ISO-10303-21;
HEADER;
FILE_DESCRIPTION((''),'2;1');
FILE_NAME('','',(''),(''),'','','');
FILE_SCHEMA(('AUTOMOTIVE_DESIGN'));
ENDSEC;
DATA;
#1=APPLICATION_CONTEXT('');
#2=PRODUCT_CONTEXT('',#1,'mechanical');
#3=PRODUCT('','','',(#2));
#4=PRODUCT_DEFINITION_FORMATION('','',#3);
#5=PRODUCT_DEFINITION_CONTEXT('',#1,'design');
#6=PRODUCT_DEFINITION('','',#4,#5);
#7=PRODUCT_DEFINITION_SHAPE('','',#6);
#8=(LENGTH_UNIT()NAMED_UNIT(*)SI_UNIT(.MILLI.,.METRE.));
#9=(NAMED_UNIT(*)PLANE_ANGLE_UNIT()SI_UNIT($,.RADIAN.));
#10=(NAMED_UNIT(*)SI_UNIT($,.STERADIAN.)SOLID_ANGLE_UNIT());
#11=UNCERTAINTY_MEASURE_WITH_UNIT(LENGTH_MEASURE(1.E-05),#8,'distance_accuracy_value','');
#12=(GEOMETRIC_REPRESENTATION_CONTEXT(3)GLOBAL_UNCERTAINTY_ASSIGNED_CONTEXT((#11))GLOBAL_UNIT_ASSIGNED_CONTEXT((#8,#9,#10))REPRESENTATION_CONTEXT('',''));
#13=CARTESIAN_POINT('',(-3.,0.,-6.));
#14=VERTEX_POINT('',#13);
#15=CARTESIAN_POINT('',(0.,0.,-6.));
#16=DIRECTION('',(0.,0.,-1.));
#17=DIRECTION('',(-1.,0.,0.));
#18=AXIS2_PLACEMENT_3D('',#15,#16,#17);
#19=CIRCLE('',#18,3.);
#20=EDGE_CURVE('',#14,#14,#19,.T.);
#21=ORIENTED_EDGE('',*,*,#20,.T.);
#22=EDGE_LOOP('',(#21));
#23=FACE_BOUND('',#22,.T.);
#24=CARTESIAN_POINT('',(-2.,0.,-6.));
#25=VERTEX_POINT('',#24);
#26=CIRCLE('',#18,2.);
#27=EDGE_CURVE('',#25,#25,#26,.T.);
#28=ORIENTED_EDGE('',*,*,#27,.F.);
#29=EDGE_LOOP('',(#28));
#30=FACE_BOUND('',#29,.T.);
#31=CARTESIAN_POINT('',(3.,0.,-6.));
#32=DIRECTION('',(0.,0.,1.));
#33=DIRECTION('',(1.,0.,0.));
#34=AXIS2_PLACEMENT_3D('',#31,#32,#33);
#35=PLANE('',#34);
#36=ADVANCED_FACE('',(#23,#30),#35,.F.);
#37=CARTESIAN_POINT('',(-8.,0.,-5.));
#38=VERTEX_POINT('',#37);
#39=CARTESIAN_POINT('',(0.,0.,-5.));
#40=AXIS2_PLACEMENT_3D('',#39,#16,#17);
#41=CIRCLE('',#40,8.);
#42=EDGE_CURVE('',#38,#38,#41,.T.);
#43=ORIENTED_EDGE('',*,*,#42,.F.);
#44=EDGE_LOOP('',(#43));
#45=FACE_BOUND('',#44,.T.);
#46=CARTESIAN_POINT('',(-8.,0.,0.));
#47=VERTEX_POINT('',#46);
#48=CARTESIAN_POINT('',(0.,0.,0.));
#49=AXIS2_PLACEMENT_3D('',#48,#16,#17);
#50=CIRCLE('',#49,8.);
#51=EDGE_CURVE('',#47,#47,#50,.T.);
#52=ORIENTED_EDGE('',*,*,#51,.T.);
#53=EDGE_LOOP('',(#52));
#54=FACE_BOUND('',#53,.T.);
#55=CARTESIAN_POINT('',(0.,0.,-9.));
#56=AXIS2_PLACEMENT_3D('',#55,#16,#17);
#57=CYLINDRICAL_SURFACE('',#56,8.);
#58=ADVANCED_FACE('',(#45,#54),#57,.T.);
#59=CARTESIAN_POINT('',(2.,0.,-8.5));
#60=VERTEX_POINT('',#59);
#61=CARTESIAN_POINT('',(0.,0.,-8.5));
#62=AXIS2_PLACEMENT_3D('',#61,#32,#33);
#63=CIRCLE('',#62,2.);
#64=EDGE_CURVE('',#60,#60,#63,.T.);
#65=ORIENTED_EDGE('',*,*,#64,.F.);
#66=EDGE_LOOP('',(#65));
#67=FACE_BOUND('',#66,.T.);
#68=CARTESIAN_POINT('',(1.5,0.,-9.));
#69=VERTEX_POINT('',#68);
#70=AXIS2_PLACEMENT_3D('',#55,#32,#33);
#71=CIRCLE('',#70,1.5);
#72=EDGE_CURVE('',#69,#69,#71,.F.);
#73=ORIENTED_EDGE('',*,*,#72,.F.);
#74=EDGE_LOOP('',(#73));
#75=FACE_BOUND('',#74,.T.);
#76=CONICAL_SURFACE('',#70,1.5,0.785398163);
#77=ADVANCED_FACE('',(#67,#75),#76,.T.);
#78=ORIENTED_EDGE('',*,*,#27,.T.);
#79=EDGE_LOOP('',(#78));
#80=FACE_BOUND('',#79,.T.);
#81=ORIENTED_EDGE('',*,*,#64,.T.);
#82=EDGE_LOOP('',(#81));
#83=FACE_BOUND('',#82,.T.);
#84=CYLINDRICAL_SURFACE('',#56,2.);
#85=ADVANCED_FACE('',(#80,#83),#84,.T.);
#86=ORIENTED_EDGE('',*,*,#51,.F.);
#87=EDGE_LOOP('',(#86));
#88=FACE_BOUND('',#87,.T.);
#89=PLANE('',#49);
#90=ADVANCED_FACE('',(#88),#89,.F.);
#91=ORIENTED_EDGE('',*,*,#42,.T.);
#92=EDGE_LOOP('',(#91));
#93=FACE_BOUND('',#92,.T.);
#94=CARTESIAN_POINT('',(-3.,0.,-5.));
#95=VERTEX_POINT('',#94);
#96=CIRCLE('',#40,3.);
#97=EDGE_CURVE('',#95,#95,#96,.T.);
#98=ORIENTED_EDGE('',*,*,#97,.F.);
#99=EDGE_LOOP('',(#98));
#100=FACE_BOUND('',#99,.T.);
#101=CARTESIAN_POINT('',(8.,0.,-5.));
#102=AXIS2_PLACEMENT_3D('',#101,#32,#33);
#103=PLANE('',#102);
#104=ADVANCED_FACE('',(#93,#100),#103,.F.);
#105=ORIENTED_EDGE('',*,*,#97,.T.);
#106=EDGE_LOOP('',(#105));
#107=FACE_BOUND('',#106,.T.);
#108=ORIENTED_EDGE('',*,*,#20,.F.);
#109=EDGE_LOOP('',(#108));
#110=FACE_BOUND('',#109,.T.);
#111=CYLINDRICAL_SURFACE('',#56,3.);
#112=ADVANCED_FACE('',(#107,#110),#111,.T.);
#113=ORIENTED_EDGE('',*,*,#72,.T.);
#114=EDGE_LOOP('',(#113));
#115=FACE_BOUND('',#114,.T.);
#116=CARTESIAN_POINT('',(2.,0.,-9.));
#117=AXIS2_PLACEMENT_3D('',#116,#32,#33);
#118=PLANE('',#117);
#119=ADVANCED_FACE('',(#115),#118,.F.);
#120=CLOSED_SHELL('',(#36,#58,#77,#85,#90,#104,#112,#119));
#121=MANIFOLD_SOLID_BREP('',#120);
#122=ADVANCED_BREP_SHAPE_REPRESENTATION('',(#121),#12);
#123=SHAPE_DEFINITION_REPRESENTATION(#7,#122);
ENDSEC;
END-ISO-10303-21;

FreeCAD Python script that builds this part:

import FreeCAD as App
import Part
import Sketcher

V = App.Vector


def edges_at(feature, points):
    """Names of the edges that pass closest to the given points."""
    edges = feature.Shape.Edges
    near = lambda p: min(range(len(edges)), key=lambda i: edges[i].distToShape(Part.Vertex(*p))[0])
    return sorted({f"Edge{near(p) + 1}" for p in points})

doc = App.newDocument("Part")
body = doc.addObject("PartDesign::Body", "Body")

sketch1 = body.newObject("Sketcher::SketchObject", "Sketch")
sketch1.AttachmentSupport = (doc.getObject("XZ_Plane"), [""])
sketch1.MapMode = "FlatFace"
sketch1.addGeometry(Part.LineSegment(V(0, 0, 0), V(8, 0, 0)), False)
sketch1.addGeometry(Part.LineSegment(V(8, 0, 0), V(8, -5, 0)), False)
sketch1.addGeometry(Part.LineSegment(V(8, -5, 0), V(3, -5, 0)), False)
sketch1.addGeometry(Part.LineSegment(V(3, -5, 0), V(3, -6, 0)), False)
sketch1.addGeometry(Part.LineSegment(V(3, -6, 0), V(2, -6, 0)), False)
sketch1.addGeometry(Part.LineSegment(V(2, -6, 0), V(2, -9, 0)), False)
sketch1.addGeometry(Part.LineSegment(V(2, -9, 0), V(0, -9, 0)), False)
sketch1.addGeometry(Part.LineSegment(V(0, -9, 0), V(0, 0, 0)), False)
sketch1.addConstraint(Sketcher.Constraint("Coincident", 0, 2, 1, 1))
sketch1.addConstraint(Sketcher.Constraint("Coincident", 1, 2, 2, 1))
sketch1.addConstraint(Sketcher.Constraint("Coincident", 2, 2, 3, 1))
sketch1.addConstraint(Sketcher.Constraint("Coincident", 3, 2, 4, 1))
sketch1.addConstraint(Sketcher.Constraint("Coincident", 4, 2, 5, 1))
sketch1.addConstraint(Sketcher.Constraint("Coincident", 5, 2, 6, 1))
sketch1.addConstraint(Sketcher.Constraint("Coincident", 6, 2, 7, 1))
sketch1.addConstraint(Sketcher.Constraint("Coincident", 7, 2, 0, 1))
sketch1.addConstraint(Sketcher.Constraint("Horizontal", 0))
sketch1.addConstraint(Sketcher.Constraint("Vertical", 1))
sketch1.addConstraint(Sketcher.Constraint("Horizontal", 2))
sketch1.addConstraint(Sketcher.Constraint("Vertical", 3))
sketch1.addConstraint(Sketcher.Constraint("Horizontal", 4))
sketch1.addConstraint(Sketcher.Constraint("Vertical", 5))
sketch1.addConstraint(Sketcher.Constraint("Horizontal", 6))
sketch1.addConstraint(Sketcher.Constraint("Vertical", 7))
sketch1.addConstraint(Sketcher.Constraint("Coincident", 7, 2, -1, 1))
sketch1.addConstraint(Sketcher.Constraint("Equal", 2, 1))
sketch1.addConstraint(Sketcher.Constraint("Equal", 4, 3))
sketch1.addConstraint(Sketcher.Constraint("DistanceX", 0, 1, 0, 2, 8.0))
sketch1.addConstraint(Sketcher.Constraint("DistanceX", 2, 2, 2, 1, 5.0))
sketch1.addConstraint(Sketcher.Constraint("DistanceX", 4, 2, 4, 1, 1.0))
sketch1.addConstraint(Sketcher.Constraint("DistanceY", 5, 2, 5, 1, 3.0))
revolution = body.newObject("PartDesign::Revolution", "Revolution")
revolution.Profile = sketch1
revolution.ReferenceAxis = (sketch1, ["V_Axis"])
revolution.Angle = 360
doc.recompute()

chamfer = body.newObject("PartDesign::Chamfer", "Chamfer")
chamfer.Base = (revolution, edges_at(revolution, [(2, 0, -9)]))
chamfer.Size = 0.5

doc.recompute()
